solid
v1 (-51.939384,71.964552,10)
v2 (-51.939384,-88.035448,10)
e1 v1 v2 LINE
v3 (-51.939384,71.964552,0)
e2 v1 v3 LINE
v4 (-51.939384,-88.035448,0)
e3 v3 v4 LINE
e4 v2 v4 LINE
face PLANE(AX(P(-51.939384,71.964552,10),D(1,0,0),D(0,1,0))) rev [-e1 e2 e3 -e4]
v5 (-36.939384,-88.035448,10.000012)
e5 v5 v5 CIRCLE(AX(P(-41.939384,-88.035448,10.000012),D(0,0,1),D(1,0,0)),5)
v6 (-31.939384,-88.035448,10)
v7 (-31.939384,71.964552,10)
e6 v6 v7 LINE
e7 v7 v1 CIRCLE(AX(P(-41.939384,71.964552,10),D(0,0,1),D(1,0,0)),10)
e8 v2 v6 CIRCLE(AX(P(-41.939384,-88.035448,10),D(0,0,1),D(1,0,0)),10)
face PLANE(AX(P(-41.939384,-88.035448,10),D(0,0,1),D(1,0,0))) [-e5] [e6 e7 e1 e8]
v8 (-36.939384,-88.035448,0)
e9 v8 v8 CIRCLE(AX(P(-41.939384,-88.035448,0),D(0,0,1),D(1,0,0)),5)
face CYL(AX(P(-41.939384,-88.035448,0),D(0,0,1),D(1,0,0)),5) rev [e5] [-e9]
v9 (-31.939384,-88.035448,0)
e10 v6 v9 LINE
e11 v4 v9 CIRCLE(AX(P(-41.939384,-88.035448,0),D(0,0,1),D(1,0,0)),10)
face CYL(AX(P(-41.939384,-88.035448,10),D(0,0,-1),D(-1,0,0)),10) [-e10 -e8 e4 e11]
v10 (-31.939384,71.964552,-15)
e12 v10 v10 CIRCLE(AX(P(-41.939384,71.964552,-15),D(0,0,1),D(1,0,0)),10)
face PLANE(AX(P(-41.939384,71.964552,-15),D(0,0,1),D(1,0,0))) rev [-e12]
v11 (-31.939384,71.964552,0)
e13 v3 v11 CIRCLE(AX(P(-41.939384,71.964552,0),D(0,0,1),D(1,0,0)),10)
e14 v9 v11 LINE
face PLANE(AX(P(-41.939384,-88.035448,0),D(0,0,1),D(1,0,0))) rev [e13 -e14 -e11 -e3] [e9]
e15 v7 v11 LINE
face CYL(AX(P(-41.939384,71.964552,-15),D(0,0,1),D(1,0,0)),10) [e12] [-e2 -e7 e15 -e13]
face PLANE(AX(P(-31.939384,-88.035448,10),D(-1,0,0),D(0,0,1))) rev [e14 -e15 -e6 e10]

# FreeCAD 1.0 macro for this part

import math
import FreeCAD as App
import Part
import Sketcher

V = App.Vector

doc = App.newDocument("Part")
params = doc.addObject("Spreadsheet::Sheet", "Params")
for row, (alias, value) in enumerate([
    ("sketch1_radius", "10 mm"),
    ("sketch1_height", "160 mm"),
    ("pad1_length", "10 mm"),
    ("sketch2_diameter", "10 mm"),
    ("sketch3_diameter", "20 mm"),
    ("pad2_length", "25 mm"),
], start=1):
    params.set(f"A{row}", alias)
    params.set(f"B{row}", "=" + value)
    params.setAlias(f"B{row}", alias)

body = doc.addObject("PartDesign::Body", "Body")

sketch1 = doc.addObject("Sketcher::SketchObject", "Sketch")
body.addObject(sketch1)
sketch1.AttachmentSupport = (doc.XY_Plane, [""])
sketch1.MapMode = "FlatFace"
sketch1.addGeometry([
    Part.LineSegment(V(-51.939384, 71.964552, 0), V(-51.939384, -88.035448, 0)),
    Part.ArcOfCircle(Part.Circle(V(-41.939384, -88.035448, 0), V(0, 0, 1), 10), math.radians(180), math.radians(360)),
    Part.LineSegment(V(-31.939384, -88.035448, 0), V(-31.939384, 71.964552, 0)),
    Part.LineSegment(V(-31.939384, 71.964552, 0), V(-51.939384, 71.964552, 0)),
], False)
sketch1.addConstraint([
    Sketcher.Constraint("Tangent", 0, 2, 1, 1),
    Sketcher.Constraint("Tangent", 1, 2, 2, 1),
    Sketcher.Constraint("Coincident", 2, 2, 3, 1),
    Sketcher.Constraint("Coincident", 3, 2, 0, 1),
    Sketcher.Constraint("Vertical", 0),
    Sketcher.Constraint("Vertical", 2),
    Sketcher.Constraint("Horizontal", 3),
    Sketcher.Constraint("Radius", 1, 10.0),
    Sketcher.Constraint("DistanceY", 0, 2, 0, 1, 160.0),
    Sketcher.Constraint("DistanceX", 1, 3, -1, 1, 41.939384),
    Sketcher.Constraint("DistanceY", 1, 3, -1, 1, 88.035448),
])
sketch1.setExpression("Constraints[7]", "Params.sketch1_radius")
sketch1.setExpression("Constraints[8]", "Params.sketch1_height")
pad1 = doc.addObject("PartDesign::Pad", "Pad")
body.addObject(pad1)
pad1.Profile = sketch1
pad1.setExpression("Length", "Params.pad1_length")

sketch2 = doc.addObject("Sketcher::SketchObject", "Sketch001")
body.addObject(sketch2)
sketch2.AttachmentSupport = (doc.XY_Plane, [""])
sketch2.MapMode = "FlatFace"
sketch2.AttachmentOffset = App.Placement(V(0, 0, 10), App.Rotation())
sketch2.addGeometry(Part.Circle(V(-41.939384, -88.035448, 0), V(0, 0, 1), 5), False)
sketch2.addConstraint([
    Sketcher.Constraint("Diameter", 0, 10.0),
    Sketcher.Constraint("DistanceX", 0, 3, -1, 1, 41.939384),
    Sketcher.Constraint("DistanceY", 0, 3, -1, 1, 88.035448),
])
sketch2.setExpression("Constraints[0]", "Params.sketch2_diameter")
pocket1 = doc.addObject("PartDesign::Pocket", "Pocket")
body.addObject(pocket1)
pocket1.Profile = sketch2
pocket1.Type = "ThroughAll"
pocket1.Midplane = True

sketch3 = doc.addObject("Sketcher::SketchObject", "Sketch002")
body.addObject(sketch3)
sketch3.AttachmentSupport = (doc.XY_Plane, [""])
sketch3.MapMode = "FlatFace"
sketch3.AttachmentOffset = App.Placement(V(0, 0, 10), App.Rotation())
sketch3.addGeometry(Part.Circle(V(-41.939384, 71.964552, 0), V(0, 0, 1), 10), False)
sketch3.addConstraint([
    Sketcher.Constraint("Diameter", 0, 20.0),
    Sketcher.Constraint("DistanceX", 0, 3, -1, 1, 41.939384),
    Sketcher.Constraint("DistanceY", -1, 1, 0, 3, 71.964552),
])
sketch3.setExpression("Constraints[0]", "Params.sketch3_diameter")
pad2 = doc.addObject("PartDesign::Pad", "Pad001")
body.addObject(pad2)
pad2.Profile = sketch3
pad2.setExpression("Length", "Params.pad2_length")
pad2.Reversed = True

doc.recompute()
